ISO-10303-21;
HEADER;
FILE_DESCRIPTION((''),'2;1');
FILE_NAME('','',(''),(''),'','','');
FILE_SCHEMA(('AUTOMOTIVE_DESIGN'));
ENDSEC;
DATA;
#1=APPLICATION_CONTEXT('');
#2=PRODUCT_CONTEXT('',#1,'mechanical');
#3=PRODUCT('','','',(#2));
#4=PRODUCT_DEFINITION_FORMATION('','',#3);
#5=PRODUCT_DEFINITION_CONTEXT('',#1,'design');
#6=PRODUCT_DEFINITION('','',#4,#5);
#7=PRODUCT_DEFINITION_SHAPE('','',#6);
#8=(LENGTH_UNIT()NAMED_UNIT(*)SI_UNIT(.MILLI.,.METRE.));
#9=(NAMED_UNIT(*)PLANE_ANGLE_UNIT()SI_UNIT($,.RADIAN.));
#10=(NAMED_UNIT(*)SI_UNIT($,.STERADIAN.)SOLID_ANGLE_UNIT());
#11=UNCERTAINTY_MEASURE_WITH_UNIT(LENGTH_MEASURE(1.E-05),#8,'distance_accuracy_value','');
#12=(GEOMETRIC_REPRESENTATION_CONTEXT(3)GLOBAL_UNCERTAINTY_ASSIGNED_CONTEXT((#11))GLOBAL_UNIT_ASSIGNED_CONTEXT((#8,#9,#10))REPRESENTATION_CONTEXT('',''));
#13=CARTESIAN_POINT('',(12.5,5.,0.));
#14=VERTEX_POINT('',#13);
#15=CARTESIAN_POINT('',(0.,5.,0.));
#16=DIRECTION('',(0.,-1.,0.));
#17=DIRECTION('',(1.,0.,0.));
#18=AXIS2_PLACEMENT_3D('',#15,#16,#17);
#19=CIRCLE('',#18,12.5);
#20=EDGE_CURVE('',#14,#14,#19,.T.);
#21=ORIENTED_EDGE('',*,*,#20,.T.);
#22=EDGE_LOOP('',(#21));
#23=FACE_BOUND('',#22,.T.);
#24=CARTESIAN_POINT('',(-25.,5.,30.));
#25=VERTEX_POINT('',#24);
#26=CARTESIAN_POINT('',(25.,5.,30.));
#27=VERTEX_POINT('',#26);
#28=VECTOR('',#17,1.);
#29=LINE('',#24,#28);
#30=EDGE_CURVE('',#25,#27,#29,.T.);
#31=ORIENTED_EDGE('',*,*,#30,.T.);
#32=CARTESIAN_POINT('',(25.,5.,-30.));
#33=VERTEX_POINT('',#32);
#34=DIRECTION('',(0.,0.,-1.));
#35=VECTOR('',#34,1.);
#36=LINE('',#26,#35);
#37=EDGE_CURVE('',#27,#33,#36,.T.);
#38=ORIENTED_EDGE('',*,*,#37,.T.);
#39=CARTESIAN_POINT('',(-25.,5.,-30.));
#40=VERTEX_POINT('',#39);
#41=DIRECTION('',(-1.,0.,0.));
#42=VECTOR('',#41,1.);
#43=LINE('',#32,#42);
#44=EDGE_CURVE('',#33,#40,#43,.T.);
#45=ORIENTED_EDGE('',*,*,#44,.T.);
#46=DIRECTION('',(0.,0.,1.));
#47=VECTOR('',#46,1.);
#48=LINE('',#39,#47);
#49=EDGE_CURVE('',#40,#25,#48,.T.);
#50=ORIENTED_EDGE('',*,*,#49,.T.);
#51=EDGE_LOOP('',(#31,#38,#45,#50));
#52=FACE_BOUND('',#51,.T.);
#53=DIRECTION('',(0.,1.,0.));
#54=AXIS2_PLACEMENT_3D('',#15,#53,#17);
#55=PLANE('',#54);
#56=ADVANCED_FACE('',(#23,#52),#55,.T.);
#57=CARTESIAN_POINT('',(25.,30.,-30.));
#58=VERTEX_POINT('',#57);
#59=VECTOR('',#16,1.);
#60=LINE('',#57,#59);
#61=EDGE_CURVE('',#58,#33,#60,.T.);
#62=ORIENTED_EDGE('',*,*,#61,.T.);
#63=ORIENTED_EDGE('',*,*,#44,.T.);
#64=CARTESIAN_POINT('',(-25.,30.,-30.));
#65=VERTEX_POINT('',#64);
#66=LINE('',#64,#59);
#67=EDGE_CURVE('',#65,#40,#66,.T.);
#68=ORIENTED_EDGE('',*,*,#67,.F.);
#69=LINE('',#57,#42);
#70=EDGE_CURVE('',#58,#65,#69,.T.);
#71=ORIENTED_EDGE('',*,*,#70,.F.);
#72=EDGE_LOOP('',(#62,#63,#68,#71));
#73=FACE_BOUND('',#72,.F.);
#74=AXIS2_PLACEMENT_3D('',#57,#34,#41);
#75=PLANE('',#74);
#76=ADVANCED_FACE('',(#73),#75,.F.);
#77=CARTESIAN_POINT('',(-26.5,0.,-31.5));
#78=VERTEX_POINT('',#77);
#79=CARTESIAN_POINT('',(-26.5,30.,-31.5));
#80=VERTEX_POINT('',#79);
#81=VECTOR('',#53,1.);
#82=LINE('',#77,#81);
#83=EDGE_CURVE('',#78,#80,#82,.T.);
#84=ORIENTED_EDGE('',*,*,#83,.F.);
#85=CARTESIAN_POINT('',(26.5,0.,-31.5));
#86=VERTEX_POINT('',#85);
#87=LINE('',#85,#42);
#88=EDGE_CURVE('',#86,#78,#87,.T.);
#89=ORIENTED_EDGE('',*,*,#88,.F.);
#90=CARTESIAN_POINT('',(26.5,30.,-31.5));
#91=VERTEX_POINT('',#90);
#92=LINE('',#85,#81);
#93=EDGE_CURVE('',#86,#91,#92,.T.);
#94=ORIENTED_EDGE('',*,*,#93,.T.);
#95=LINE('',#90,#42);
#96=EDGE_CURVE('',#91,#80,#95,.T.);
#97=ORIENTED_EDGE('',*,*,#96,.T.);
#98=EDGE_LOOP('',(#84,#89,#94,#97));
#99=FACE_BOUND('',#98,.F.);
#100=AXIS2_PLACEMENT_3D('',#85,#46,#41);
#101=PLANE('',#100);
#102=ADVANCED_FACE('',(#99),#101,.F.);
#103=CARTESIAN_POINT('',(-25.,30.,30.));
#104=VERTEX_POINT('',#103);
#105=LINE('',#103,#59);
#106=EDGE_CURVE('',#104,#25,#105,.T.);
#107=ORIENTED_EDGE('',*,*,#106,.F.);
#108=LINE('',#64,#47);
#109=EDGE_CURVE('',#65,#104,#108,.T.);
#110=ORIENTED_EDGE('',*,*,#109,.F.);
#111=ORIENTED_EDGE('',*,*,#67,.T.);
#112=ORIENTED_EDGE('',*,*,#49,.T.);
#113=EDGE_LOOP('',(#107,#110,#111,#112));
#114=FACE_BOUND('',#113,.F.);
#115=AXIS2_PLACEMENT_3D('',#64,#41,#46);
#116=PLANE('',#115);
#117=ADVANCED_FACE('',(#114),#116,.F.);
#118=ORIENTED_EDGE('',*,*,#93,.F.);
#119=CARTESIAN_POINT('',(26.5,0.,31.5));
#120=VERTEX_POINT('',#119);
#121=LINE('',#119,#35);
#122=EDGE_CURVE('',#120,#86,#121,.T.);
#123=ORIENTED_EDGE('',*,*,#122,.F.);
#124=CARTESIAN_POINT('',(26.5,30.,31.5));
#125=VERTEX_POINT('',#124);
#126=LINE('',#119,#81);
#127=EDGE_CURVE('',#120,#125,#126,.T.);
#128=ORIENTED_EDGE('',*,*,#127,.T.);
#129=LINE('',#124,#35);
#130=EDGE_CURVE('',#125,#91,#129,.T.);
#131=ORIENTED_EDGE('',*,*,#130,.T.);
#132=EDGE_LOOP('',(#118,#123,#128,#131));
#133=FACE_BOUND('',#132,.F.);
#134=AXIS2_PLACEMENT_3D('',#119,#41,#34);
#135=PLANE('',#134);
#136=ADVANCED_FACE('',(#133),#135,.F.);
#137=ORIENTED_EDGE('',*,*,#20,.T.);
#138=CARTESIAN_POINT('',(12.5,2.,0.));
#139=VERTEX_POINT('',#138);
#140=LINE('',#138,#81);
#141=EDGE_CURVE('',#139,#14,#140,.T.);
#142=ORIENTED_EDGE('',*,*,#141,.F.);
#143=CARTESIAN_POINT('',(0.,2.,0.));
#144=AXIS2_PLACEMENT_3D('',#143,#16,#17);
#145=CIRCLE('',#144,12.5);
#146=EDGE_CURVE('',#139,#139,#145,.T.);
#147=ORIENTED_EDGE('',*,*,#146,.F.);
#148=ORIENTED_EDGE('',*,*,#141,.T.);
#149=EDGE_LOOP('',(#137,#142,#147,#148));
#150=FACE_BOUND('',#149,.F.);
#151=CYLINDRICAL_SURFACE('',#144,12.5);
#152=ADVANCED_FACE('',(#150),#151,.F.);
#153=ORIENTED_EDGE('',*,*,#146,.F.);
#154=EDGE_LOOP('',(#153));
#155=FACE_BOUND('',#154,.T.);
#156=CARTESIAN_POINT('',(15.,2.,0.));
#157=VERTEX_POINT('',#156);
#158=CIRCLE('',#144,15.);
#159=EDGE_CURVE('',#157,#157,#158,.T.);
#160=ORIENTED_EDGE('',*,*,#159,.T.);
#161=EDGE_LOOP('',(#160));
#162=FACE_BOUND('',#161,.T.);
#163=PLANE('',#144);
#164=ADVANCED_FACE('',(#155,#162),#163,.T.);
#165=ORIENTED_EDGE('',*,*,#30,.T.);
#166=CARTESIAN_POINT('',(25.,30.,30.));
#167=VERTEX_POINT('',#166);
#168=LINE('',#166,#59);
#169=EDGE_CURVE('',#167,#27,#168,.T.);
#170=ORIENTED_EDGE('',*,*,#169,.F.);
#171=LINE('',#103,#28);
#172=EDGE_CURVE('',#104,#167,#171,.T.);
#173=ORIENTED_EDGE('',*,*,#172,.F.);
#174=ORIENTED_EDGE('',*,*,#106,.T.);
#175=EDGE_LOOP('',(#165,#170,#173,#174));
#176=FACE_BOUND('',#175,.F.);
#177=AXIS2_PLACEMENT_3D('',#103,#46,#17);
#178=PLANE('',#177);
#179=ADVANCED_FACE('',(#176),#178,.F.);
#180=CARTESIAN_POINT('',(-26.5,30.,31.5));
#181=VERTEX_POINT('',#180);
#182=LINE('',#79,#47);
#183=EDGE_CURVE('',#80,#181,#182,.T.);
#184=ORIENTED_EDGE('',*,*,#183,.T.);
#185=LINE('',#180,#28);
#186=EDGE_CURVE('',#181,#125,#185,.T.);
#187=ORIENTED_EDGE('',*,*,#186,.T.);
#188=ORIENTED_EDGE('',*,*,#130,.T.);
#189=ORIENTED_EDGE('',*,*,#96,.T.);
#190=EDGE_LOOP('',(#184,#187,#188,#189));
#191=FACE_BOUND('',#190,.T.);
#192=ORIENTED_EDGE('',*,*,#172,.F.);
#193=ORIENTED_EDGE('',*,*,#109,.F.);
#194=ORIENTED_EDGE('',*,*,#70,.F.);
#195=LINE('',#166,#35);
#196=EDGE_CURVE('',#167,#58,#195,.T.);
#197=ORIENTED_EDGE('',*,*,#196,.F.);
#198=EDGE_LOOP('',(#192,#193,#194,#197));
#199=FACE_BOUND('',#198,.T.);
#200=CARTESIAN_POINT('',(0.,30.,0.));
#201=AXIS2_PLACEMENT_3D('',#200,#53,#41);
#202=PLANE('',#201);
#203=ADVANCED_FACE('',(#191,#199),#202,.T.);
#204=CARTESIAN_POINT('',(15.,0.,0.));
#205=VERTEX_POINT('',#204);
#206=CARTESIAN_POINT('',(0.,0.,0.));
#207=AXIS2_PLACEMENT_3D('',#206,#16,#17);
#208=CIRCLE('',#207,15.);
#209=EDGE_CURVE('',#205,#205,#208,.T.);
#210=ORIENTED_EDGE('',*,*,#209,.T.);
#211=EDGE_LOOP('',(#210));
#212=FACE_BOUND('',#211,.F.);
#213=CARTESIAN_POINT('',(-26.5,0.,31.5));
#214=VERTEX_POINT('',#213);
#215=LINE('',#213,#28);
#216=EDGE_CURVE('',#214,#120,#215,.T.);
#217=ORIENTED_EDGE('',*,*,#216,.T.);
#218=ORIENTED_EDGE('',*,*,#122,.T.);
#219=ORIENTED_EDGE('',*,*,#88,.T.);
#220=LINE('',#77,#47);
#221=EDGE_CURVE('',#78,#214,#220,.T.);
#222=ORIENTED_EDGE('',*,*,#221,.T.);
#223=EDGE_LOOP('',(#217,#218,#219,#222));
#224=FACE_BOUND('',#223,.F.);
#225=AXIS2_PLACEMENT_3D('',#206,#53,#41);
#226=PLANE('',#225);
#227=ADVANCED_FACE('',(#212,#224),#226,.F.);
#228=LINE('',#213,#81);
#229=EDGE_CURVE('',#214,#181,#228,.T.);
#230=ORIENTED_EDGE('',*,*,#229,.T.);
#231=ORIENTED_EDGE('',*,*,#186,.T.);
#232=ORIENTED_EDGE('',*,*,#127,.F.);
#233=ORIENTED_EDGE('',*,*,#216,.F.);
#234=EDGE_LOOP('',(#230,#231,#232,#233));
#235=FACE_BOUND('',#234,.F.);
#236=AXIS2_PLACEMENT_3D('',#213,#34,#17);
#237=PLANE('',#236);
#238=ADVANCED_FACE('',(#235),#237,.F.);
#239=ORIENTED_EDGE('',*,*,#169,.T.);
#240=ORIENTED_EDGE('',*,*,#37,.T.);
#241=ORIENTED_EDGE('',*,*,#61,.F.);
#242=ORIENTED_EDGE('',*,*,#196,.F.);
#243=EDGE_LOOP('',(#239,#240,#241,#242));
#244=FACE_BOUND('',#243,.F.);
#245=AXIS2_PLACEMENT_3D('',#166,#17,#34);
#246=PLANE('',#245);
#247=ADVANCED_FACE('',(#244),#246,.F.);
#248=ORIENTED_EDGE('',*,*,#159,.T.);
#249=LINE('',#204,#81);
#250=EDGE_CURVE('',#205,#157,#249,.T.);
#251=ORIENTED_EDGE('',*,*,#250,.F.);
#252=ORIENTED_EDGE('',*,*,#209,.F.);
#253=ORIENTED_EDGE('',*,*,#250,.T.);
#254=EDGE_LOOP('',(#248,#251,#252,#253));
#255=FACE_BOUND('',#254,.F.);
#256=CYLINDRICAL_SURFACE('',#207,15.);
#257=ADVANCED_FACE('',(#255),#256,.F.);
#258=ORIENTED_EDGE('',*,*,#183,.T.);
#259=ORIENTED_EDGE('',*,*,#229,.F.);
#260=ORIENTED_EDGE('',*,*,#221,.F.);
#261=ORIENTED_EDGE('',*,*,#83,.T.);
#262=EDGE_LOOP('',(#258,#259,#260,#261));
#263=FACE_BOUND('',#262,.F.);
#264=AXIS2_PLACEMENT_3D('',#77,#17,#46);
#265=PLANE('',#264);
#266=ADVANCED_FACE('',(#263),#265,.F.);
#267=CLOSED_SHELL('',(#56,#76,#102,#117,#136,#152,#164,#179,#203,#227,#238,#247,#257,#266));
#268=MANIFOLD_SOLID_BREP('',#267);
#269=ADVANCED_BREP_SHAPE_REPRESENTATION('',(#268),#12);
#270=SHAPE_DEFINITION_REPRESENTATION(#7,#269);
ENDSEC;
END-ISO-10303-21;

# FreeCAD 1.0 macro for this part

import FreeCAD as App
import Part
import Sketcher

V = App.Vector

doc = App.newDocument("Part")
body = doc.addObject("PartDesign::Body", "Body")

sketch1 = body.newObject("Sketcher::SketchObject", "Sketch")
sketch1.AttachmentSupport = (doc.getObject("XZ_Plane"), [""])
sketch1.MapMode = "FlatFace"
sketch1.addGeometry([
    Part.LineSegment(V(-26, -32, 0), V(-26, 32, 0)),
    Part.LineSegment(V(-26, 32, 0), V(26, 32, 0)),
    Part.LineSegment(V(26, 32, 0), V(26, -32, 0)),
    Part.LineSegment(V(26, -32, 0), V(-26, -32, 0)),
], False)
sketch1.addConstraint([
    Sketcher.Constraint("Coincident", 0, 2, 1, 1),
    Sketcher.Constraint("Coincident", 1, 2, 2, 1),
    Sketcher.Constraint("Coincident", 2, 2, 3, 1),
    Sketcher.Constraint("Coincident", 3, 2, 0, 1),
    Sketcher.Constraint("Vertical", 0),
    Sketcher.Constraint("Horizontal", 1),
    Sketcher.Constraint("Vertical", 2),
    Sketcher.Constraint("Horizontal", 3),
    Sketcher.Constraint("Symmetric", 0, 2, 2, 2, -1, 1),
    Sketcher.Constraint("DistanceX", 1, 1, 1, 2, 53.0),
    Sketcher.Constraint("DistanceY", 0, 1, 0, 2, 63.0),
])
pad1 = body.newObject("PartDesign::Pad", "Pad")
pad1.Profile = sketch1
pad1.Length = 30
pad1.Reversed = True

sketch2 = body.newObject("Sketcher::SketchObject", "Sketch001")
sketch2.AttachmentSupport = (doc.getObject("XZ_Plane"), [""])
sketch2.MapMode = "FlatFace"
sketch2.AttachmentOffset = App.Placement(V(0, 0, -30), App.Rotation())
sketch2.addGeometry([
    Part.LineSegment(V(-25, -30, 0), V(-25, 30, 0)),
    Part.LineSegment(V(-25, 30, 0), V(25, 30, 0)),
    Part.LineSegment(V(25, 30, 0), V(25, -30, 0)),
    Part.LineSegment(V(25, -30, 0), V(-25, -30, 0)),
], False)
sketch2.addConstraint([
    Sketcher.Constraint("Coincident", 0, 2, 1, 1),
    Sketcher.Constraint("Coincident", 1, 2, 2, 1),
    Sketcher.Constraint("Coincident", 2, 2, 3, 1),
    Sketcher.Constraint("Coincident", 3, 2, 0, 1),
    Sketcher.Constraint("Vertical", 0),
    Sketcher.Constraint("Horizontal", 1),
    Sketcher.Constraint("Vertical", 2),
    Sketcher.Constraint("Horizontal", 3),
    Sketcher.Constraint("Symmetric", 0, 2, 2, 2, -1, 1),
    Sketcher.Constraint("DistanceX", 1, 1, 1, 2, 50.0),
    Sketcher.Constraint("DistanceY", 0, 1, 0, 2, 60.0),
])
pocket1 = body.newObject("PartDesign::Pocket", "Pocket")
pocket1.Profile = sketch2
pocket1.Length = 25
pocket1.Reversed = True

sketch3 = body.newObject("Sketcher::SketchObject", "Sketch002")
sketch3.AttachmentSupport = (doc.getObject("XZ_Plane"), [""])
sketch3.MapMode = "FlatFace"
sketch3.addGeometry(Part.Circle(V(0, 0, 0), V(0, 0, 1), 15), False)
sketch3.addConstraint([
    Sketcher.Constraint("Coincident", 0, 3, -1, 1),
    Sketcher.Constraint("Diameter", 0, 30.0),
])
pocket2 = body.newObject("PartDesign::Pocket", "Pocket001")
pocket2.Profile = sketch3
pocket2.Length = 2

sketch4 = body.newObject("Sketcher::SketchObject", "Sketch003")
sketch4.AttachmentSupport = (doc.getObject("XZ_Plane"), [""])
sketch4.MapMode = "FlatFace"
sketch4.AttachmentOffset = App.Placement(V(0, 0, -2), App.Rotation())
sketch4.addGeometry(Part.Circle(V(0, 0, 0), V(0, 0, 1), 12), False)
sketch4.addConstraint([
    Sketcher.Constraint("Coincident", 0, 3, -1, 1),
    Sketcher.Constraint("Diameter", 0, 25.0),
])
pocket3 = body.newObject("PartDesign::Pocket", "Pocket002")
pocket3.Profile = sketch4
pocket3.Type = "UpToFirst"

doc.recompute()
